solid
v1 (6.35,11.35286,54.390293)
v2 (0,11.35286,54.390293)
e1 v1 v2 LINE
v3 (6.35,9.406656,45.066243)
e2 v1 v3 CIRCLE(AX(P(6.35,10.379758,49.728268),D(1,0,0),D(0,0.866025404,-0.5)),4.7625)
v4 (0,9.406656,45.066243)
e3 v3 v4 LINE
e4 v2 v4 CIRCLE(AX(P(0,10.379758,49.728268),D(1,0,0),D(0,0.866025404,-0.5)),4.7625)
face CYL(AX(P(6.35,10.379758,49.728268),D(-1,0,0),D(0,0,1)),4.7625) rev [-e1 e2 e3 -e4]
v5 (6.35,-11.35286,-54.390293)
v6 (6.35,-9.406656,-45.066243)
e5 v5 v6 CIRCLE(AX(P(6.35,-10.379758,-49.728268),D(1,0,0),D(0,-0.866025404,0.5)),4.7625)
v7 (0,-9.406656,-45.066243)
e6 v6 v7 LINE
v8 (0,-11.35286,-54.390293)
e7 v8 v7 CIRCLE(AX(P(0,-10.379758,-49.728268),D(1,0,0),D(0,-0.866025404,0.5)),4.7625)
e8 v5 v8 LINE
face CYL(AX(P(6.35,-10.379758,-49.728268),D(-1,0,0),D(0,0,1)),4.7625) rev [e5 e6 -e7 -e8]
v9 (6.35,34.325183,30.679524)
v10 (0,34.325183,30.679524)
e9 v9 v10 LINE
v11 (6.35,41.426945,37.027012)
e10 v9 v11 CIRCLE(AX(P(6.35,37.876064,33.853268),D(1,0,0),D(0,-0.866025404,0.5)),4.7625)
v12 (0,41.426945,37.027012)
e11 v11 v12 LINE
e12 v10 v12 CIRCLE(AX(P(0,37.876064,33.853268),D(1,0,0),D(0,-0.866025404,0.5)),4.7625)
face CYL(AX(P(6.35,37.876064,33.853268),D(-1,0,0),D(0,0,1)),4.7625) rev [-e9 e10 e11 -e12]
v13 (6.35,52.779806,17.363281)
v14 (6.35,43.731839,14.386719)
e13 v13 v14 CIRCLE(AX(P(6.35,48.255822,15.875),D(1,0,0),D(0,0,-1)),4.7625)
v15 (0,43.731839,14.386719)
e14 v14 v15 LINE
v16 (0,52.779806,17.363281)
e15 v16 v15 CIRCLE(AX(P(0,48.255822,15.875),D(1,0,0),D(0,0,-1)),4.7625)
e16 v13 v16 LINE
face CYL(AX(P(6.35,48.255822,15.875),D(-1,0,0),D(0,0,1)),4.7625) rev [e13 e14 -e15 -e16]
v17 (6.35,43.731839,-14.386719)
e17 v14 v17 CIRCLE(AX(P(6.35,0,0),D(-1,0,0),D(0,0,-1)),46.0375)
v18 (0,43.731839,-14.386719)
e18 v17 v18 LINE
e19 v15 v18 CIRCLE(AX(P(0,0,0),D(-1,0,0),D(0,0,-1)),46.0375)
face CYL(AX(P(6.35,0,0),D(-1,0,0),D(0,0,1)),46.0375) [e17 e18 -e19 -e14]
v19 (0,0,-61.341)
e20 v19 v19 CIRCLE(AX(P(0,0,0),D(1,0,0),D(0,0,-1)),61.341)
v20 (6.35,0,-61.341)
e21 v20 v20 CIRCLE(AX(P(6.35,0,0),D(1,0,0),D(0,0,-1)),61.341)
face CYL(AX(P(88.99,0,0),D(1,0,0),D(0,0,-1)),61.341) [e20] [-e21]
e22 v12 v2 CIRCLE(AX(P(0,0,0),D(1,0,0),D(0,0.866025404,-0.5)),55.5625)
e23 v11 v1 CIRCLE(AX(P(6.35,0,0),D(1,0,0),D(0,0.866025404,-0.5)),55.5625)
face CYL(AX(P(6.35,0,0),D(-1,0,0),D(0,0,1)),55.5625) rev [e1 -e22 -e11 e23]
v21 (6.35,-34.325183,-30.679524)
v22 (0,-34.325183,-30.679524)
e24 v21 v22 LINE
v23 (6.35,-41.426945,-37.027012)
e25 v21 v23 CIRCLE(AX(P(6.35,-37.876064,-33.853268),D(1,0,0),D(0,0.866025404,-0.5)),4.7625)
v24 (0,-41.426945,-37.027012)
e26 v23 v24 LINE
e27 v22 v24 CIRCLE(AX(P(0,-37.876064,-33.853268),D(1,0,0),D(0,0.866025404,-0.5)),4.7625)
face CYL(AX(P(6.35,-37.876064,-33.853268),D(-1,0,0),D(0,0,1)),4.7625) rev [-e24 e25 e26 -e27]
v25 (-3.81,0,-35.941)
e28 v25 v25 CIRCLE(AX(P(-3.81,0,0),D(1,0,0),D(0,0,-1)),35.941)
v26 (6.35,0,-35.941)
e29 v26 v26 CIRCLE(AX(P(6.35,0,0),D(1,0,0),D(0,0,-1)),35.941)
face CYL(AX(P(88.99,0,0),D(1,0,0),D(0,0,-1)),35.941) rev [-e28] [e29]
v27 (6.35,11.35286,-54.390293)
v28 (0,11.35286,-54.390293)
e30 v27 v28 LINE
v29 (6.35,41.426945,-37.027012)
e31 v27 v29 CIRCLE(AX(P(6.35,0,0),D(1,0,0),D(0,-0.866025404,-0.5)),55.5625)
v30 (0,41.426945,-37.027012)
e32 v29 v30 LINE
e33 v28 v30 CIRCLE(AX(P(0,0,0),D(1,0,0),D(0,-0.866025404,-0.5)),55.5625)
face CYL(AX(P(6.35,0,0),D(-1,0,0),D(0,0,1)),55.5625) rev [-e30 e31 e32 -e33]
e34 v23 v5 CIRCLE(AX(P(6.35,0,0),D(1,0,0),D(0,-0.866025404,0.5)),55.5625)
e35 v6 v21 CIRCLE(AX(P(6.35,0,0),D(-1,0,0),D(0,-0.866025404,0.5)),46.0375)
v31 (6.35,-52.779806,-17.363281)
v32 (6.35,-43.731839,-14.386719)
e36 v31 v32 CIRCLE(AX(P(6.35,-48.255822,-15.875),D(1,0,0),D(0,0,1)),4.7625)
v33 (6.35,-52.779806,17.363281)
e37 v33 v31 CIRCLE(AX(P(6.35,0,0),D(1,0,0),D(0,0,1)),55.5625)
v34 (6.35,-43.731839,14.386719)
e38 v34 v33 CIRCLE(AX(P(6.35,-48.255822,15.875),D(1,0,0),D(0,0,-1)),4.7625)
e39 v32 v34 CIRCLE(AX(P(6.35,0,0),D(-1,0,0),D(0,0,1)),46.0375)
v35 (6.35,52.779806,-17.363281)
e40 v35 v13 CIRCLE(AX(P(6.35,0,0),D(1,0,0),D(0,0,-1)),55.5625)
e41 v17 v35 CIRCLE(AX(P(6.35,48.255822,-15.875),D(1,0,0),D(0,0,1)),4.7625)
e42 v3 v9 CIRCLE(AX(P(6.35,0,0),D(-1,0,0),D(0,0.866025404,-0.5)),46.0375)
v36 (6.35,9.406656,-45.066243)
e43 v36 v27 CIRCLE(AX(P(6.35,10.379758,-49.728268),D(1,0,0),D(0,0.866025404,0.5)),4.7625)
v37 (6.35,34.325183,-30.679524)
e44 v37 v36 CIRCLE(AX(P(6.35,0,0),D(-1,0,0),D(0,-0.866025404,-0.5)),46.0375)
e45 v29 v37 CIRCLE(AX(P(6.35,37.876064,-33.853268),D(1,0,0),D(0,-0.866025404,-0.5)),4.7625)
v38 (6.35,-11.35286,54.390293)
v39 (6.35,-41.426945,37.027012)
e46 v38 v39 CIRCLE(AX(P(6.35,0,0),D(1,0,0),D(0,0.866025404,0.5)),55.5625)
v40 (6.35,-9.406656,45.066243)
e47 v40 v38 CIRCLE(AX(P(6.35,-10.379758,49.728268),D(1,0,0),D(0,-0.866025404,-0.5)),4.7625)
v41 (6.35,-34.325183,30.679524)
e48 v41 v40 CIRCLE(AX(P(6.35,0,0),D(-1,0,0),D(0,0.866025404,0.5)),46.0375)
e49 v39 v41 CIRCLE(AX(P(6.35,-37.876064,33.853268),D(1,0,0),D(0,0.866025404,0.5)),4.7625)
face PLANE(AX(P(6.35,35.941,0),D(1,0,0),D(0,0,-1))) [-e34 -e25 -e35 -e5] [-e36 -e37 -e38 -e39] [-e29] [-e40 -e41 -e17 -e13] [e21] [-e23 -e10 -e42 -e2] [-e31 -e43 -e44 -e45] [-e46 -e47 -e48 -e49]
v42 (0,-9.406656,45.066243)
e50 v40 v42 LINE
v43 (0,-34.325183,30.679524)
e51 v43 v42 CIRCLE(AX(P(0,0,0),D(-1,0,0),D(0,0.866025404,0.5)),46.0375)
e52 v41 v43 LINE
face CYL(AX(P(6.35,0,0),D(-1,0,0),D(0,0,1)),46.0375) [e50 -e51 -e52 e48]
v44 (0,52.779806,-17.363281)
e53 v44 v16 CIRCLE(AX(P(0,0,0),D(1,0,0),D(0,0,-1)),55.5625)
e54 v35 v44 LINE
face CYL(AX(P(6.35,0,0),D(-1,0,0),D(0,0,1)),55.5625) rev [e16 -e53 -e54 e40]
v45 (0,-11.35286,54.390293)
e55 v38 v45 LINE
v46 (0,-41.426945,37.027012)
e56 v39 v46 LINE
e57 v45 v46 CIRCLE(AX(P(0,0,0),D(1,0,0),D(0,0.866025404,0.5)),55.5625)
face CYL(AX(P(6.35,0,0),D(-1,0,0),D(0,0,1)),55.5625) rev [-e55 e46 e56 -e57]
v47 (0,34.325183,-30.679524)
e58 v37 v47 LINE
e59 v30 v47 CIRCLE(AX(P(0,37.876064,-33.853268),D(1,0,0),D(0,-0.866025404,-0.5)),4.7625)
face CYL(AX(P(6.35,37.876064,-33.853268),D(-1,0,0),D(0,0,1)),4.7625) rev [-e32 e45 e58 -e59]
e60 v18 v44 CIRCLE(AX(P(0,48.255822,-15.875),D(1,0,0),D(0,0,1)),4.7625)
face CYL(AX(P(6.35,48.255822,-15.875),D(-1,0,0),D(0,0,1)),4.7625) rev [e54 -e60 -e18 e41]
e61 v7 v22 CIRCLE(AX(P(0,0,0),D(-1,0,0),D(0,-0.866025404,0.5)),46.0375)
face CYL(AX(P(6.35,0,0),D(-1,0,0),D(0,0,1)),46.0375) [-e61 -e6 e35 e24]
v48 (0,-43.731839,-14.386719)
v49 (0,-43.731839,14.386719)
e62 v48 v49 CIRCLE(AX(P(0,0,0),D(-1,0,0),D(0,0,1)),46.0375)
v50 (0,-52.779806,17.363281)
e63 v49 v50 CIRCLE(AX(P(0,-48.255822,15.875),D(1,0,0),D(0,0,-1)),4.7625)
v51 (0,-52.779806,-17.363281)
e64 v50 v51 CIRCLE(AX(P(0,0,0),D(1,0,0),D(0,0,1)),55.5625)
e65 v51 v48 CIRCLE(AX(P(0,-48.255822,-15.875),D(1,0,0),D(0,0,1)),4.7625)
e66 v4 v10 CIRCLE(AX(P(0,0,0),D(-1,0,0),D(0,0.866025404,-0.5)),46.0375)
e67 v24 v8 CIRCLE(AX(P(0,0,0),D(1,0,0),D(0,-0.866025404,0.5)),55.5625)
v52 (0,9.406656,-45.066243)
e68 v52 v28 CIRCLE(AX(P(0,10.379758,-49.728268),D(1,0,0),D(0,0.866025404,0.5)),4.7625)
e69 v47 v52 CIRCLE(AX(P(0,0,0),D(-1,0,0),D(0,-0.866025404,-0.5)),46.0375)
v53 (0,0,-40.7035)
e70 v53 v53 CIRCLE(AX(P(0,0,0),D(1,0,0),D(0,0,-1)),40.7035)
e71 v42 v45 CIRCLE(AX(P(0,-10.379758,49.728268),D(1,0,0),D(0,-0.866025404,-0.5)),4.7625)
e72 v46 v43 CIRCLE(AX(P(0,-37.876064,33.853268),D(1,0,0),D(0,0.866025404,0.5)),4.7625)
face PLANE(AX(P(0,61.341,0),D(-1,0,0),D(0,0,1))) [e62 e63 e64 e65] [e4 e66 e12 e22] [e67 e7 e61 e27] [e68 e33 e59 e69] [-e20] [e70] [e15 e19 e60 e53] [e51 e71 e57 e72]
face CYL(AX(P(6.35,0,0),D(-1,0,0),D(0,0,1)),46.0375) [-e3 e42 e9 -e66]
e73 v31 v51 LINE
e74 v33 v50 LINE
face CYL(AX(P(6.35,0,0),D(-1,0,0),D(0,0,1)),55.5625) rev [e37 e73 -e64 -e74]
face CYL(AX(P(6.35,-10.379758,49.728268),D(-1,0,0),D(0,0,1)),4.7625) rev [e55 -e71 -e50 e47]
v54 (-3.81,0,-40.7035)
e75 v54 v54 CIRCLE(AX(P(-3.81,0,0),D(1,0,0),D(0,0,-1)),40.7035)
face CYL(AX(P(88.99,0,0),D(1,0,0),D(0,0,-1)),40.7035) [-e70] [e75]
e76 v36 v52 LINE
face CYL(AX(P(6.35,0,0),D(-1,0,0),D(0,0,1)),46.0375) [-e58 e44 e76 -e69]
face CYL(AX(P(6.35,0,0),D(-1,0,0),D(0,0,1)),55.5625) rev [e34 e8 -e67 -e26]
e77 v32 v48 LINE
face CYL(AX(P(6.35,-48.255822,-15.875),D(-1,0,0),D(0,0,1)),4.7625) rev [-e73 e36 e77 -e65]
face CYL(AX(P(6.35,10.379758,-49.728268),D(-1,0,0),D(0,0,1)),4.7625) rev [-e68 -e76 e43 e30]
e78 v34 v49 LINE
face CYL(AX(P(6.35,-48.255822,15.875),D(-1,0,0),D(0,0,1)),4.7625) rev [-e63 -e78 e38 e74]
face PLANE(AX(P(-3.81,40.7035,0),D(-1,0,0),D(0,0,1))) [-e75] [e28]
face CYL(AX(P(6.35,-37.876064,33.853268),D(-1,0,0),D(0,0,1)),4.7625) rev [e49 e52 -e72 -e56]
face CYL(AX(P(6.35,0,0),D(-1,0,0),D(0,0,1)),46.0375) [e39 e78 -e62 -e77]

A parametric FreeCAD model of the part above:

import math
import FreeCAD as App
import Part
import Sketcher
Q = App.Units.Quantity

doc = App.newDocument("Part")
params = doc.addObject("Spreadsheet::Sheet", "Params")
for row, (alias, value) in enumerate([
    ("sketch1_height", "1 in"),
    ("sketch1_width", "0.4 in"),
    ("sketch1_width2", "0.25 in"),
    ("sketch1_height2", "0.8125 in"),
    ("revolution_angle", "360 deg"),
    ("sketch2_radius", "2.1875 in"),
    ("sketch2_radius2", "0.1875 in"),
], start=1):
    params.set(f"A{row}", alias)
    params.set(f"B{row}", "=" + value)
    params.setAlias(f"B{row}", alias)

body = doc.addObject("PartDesign::Body", "Body")

# Sketch on XY plane
sketch1 = body.newObject("Sketcher::SketchObject", "Sketch")
sketch1.AttachmentSupport = (doc.getObject("XY_Plane"), [""])
sketch1.MapMode = "FlatFace"
sketch1.addGeometry(Part.LineSegment(App.Vector(6.3, 35.9, 0), App.Vector(6.3, 61.3, 0)), False)
sketch1.addGeometry(Part.LineSegment(App.Vector(6.3, 61.3, 0), App.Vector(0, 61.3, 0)), False)
sketch1.addGeometry(Part.LineSegment(App.Vector(0, 61.3, 0), App.Vector(0, 40.7, 0)), False)
sketch1.addGeometry(Part.LineSegment(App.Vector(0, 40.7, 0), App.Vector(-3.8, 40.7, 0)), False)
sketch1.addGeometry(Part.LineSegment(App.Vector(-3.8, 40.7, 0), App.Vector(-3.8, 35.9, 0)), False)
sketch1.addGeometry(Part.LineSegment(App.Vector(-3.8, 35.9, 0), App.Vector(6.3, 35.9, 0)), False)
sketch1.addConstraint(Sketcher.Constraint("Coincident", 0, 2, 1, 1))
sketch1.addConstraint(Sketcher.Constraint("Coincident", 1, 2, 2, 1))
sketch1.addConstraint(Sketcher.Constraint("Coincident", 2, 2, 3, 1))
sketch1.addConstraint(Sketcher.Constraint("Coincident", 3, 2, 4, 1))
sketch1.addConstraint(Sketcher.Constraint("Coincident", 4, 2, 5, 1))
sketch1.addConstraint(Sketcher.Constraint("Coincident", 5, 2, 0, 1))
sketch1.addConstraint(Sketcher.Constraint("Vertical", 0))
sketch1.addConstraint(Sketcher.Constraint("Horizontal", 1))
sketch1.addConstraint(Sketcher.Constraint("Vertical", 2))
sketch1.addConstraint(Sketcher.Constraint("Horizontal", 3))
sketch1.addConstraint(Sketcher.Constraint("Vertical", 4))
sketch1.addConstraint(Sketcher.Constraint("Horizontal", 5))
sketch1.addConstraint(Sketcher.Constraint("PointOnObject", 1, 2, -2))
sketch1.addConstraint(Sketcher.Constraint("DistanceY", 0, 1, 0, 2, Q("1 in")))
sketch1.addConstraint(Sketcher.Constraint("DistanceX", 5, 1, 5, 2, Q("0.4 in")))
sketch1.addConstraint(Sketcher.Constraint("DistanceX", 1, 2, 1, 1, Q("0.25 in")))
sketch1.addConstraint(Sketcher.Constraint("DistanceY", 2, 2, 2, 1, Q("0.8125 in")))
sketch1.addConstraint(Sketcher.Constraint("DistanceY", -1, 1, 0, 2, Q("2.415 in")))
sketch1.setExpression("Constraints[13]", "Params.sketch1_height")
sketch1.setExpression("Constraints[14]", "Params.sketch1_width")
sketch1.setExpression("Constraints[15]", "Params.sketch1_width2")
sketch1.setExpression("Constraints[16]", "Params.sketch1_height2")
revolution = body.newObject("PartDesign::Revolution", "Revolution")
revolution.Profile = sketch1
revolution.ReferenceAxis = (sketch1, ["H_Axis"])
revolution.setExpression("Angle", "Params.revolution_angle")

# Sketch on YZ plane
sketch2 = body.newObject("Sketcher::SketchObject", "Sketch001")
sketch2.AttachmentSupport = (doc.getObject("YZ_Plane"), [""])
sketch2.MapMode = "FlatFace"
sketch2.addGeometry(Part.ArcOfCircle(Part.Circle(App.Vector(0, 0, 0), App.Vector(0, 0, 1), 55.6), math.radians(-18), math.radians(18)), False)
sketch2.addGeometry(Part.ArcOfCircle(Part.Circle(App.Vector(48.3, 15.9, 0), App.Vector(0, 0, 1), 4.8), math.radians(18), math.radians(198)), False)
sketch2.addGeometry(Part.ArcOfCircle(Part.Circle(App.Vector(0, 0, 0), App.Vector(0, 0, 1), 46), math.radians(-18), math.radians(18)), False)
sketch2.addGeometry(Part.ArcOfCircle(Part.Circle(App.Vector(48.3, -15.9, 0), App.Vector(0, 0, 1), 4.8), math.radians(162), math.radians(342)), False)
sketch2.addConstraint(Sketcher.Constraint("Tangent", 0, 2, 1, 1))
sketch2.addConstraint(Sketcher.Constraint("Tangent", 1, 2, 2, 2))
sketch2.addConstraint(Sketcher.Constraint("Tangent", 2, 1, 3, 1))
sketch2.addConstraint(Sketcher.Constraint("Tangent", 3, 2, 0, 1))
sketch2.addConstraint(Sketcher.Constraint("Coincident", 0, 3, -1, 1))
sketch2.addConstraint(Sketcher.Constraint("Coincident", 2, 3, -1, 1))
sketch2.addConstraint(Sketcher.Constraint("Vertical", 1, 3, 3, 3))
sketch2.addConstraint(Sketcher.Constraint("Radius", 0, Q("2.1875 in")))
sketch2.addConstraint(Sketcher.Constraint("Radius", 1, Q("0.1875 in")))
sketch2.addConstraint(Sketcher.Constraint("DistanceY", 3, 3, 1, 3, Q("1.25 in")))
sketch2.setExpression("Constraints[7]", "Params.sketch2_radius")
sketch2.setExpression("Constraints[8]", "Params.sketch2_radius2")
pocket1 = body.newObject("PartDesign::Pocket", "Pocket")
pocket1.Profile = sketch2
pocket1.Type = "ThroughAll"
pocket1.Reversed = True
doc.recompute()

polarpattern = body.newObject("PartDesign::PolarPattern", "PolarPattern")
polarpattern.Originals = [pocket1]
polarpattern.Axis = (doc.getObject("X_Axis"), [""])
polarpattern.Angle = 360
polarpattern.Occurrences = 6
body.Tip = polarpattern

doc.recompute()
